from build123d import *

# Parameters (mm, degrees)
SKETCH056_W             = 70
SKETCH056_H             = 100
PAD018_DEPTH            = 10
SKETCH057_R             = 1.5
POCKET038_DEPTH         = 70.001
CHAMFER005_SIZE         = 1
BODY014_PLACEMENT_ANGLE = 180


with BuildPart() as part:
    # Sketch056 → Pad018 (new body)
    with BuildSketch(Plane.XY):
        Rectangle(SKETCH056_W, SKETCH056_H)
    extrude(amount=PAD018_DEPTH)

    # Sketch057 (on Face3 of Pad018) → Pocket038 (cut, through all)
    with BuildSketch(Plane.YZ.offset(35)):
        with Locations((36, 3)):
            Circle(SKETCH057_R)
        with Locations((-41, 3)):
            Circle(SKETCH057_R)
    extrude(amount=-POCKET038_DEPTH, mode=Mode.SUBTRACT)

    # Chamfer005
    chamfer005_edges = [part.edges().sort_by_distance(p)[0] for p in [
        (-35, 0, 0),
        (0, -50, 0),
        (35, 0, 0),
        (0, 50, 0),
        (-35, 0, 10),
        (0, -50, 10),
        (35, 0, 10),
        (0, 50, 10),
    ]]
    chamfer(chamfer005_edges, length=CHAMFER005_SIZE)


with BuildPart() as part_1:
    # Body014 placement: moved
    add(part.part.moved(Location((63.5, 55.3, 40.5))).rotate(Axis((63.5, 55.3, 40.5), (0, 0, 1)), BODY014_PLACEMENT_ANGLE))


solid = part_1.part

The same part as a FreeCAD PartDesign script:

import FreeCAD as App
import Part
import Sketcher
from FreeCAD import Vector


def edges_at(feature, points):
    """Names of the edges that pass closest to the given points."""
    edges = feature.Shape.Edges
    near = lambda p: min(range(len(edges)), key=lambda i: edges[i].distToShape(Part.Vertex(*p))[0])
    return sorted({f"Edge{near(p) + 1}" for p in points})

doc = App.newDocument("Part")
params = doc.addObject("Spreadsheet::Sheet", "Params")
for row, (alias, value) in enumerate([
    ("sketch1_width", "70 mm"),
    ("sketch1_height", "100 mm"),
    ("pad1_length", "10 mm"),
    ("sketch2_diameter", "3 mm"),
    ("chamfer_size", "1 mm"),
], start=1):
    params.set(f"A{row}", alias)
    params.set(f"B{row}", "=" + value)
    params.setAlias(f"B{row}", alias)

body = doc.addObject("PartDesign::Body", "Body")

# Sketch on XY plane
sketch1 = body.newObject("Sketcher::SketchObject", "Sketch")
sketch1.AttachmentSupport = (doc.getObject("XY_Plane"), [""])
sketch1.MapMode = "FlatFace"
sketch1.addGeometry([
    Part.LineSegment(Vector(-35, 50, 0), Vector(-35, -50, 0)),
    Part.LineSegment(Vector(-35, -50, 0), Vector(35, -50, 0)),
    Part.LineSegment(Vector(35, -50, 0), Vector(35, 50, 0)),
    Part.LineSegment(Vector(35, 50, 0), Vector(-35, 50, 0)),
], False)
sketch1.addConstraint([
    Sketcher.Constraint("Coincident", 0, 2, 1, 1),
    Sketcher.Constraint("Coincident", 1, 2, 2, 1),
    Sketcher.Constraint("Coincident", 2, 2, 3, 1),
    Sketcher.Constraint("Coincident", 3, 2, 0, 1),
    Sketcher.Constraint("Vertical", 0),
    Sketcher.Constraint("Horizontal", 1),
    Sketcher.Constraint("Vertical", 2),
    Sketcher.Constraint("Horizontal", 3),
    Sketcher.Constraint("Symmetric", 0, 2, 2, 2, -1, 1),
    Sketcher.Constraint("DistanceX", 1, 1, 1, 2, 70.0),
    Sketcher.Constraint("DistanceY", 0, 2, 0, 1, 100.0),
])
sketch1.setExpression("Constraints[9]", "Params.sketch1_width")
sketch1.setExpression("Constraints[10]", "Params.sketch1_height")
pad1 = body.newObject("PartDesign::Pad", "Pad")
pad1.Profile = sketch1
pad1.setExpression("Length", "Params.pad1_length")

# Sketch on YZ plane
sketch2 = body.newObject("Sketcher::SketchObject", "Sketch001")
sketch2.AttachmentSupport = (doc.getObject("YZ_Plane"), [""])
sketch2.MapMode = "FlatFace"
sketch2.AttachmentOffset = App.Placement(Vector(0, 0, 35), App.Rotation())
sketch2.addGeometry([
    Part.Circle(Vector(36, 3, 0), Vector(0, 0, 1), 1.5),
    Part.Circle(Vector(-41, 3, 0), Vector(0, 0, 1), 1.5),
], False)
sketch2.addConstraint([
    Sketcher.Constraint("Equal", 0, 1),
    Sketcher.Constraint("Horizontal", 0, 3, 1, 3),
    Sketcher.Constraint("Diameter", 0, 3.0),
    Sketcher.Constraint("DistanceX", -1, 1, 0, 3, 36.0),
    Sketcher.Constraint("DistanceY", -1, 1, 0, 3, 3.0),
    Sketcher.Constraint("DistanceX", 1, 3, -1, 1, 41.0),
])
sketch2.setExpression("Constraints[2]", "Params.sketch2_diameter")
pocket1 = body.newObject("PartDesign::Pocket", "Pocket")
pocket1.Profile = sketch2
pocket1.Type = "ThroughAll"
doc.recompute()

chamfer = body.newObject("PartDesign::Chamfer", "Chamfer")
chamfer.Base = (pocket1, edges_at(pocket1, [
    (-35, 0, 0),
    (0, -50, 0),
    (35, 0, 0),
    (0, 50, 0),
    (-35, 0, 10),
    (0, -50, 10),
    (35, 0, 10),
    (0, 50, 10),
]))
chamfer.setExpression("Size", "Params.chamfer_size")
body2 = doc.addObject("PartDesign::Body", "Body001")
doc.recompute()

body.Placement = App.Placement(Vector(63.5, 55.3, 40.5), App.Rotation(Vector(0, 0, 1), 180))
boolean = body2.newObject("PartDesign::Boolean", "Boolean")
boolean.Type = "Fuse"
boolean.addObjects([body])

doc.recompute()
